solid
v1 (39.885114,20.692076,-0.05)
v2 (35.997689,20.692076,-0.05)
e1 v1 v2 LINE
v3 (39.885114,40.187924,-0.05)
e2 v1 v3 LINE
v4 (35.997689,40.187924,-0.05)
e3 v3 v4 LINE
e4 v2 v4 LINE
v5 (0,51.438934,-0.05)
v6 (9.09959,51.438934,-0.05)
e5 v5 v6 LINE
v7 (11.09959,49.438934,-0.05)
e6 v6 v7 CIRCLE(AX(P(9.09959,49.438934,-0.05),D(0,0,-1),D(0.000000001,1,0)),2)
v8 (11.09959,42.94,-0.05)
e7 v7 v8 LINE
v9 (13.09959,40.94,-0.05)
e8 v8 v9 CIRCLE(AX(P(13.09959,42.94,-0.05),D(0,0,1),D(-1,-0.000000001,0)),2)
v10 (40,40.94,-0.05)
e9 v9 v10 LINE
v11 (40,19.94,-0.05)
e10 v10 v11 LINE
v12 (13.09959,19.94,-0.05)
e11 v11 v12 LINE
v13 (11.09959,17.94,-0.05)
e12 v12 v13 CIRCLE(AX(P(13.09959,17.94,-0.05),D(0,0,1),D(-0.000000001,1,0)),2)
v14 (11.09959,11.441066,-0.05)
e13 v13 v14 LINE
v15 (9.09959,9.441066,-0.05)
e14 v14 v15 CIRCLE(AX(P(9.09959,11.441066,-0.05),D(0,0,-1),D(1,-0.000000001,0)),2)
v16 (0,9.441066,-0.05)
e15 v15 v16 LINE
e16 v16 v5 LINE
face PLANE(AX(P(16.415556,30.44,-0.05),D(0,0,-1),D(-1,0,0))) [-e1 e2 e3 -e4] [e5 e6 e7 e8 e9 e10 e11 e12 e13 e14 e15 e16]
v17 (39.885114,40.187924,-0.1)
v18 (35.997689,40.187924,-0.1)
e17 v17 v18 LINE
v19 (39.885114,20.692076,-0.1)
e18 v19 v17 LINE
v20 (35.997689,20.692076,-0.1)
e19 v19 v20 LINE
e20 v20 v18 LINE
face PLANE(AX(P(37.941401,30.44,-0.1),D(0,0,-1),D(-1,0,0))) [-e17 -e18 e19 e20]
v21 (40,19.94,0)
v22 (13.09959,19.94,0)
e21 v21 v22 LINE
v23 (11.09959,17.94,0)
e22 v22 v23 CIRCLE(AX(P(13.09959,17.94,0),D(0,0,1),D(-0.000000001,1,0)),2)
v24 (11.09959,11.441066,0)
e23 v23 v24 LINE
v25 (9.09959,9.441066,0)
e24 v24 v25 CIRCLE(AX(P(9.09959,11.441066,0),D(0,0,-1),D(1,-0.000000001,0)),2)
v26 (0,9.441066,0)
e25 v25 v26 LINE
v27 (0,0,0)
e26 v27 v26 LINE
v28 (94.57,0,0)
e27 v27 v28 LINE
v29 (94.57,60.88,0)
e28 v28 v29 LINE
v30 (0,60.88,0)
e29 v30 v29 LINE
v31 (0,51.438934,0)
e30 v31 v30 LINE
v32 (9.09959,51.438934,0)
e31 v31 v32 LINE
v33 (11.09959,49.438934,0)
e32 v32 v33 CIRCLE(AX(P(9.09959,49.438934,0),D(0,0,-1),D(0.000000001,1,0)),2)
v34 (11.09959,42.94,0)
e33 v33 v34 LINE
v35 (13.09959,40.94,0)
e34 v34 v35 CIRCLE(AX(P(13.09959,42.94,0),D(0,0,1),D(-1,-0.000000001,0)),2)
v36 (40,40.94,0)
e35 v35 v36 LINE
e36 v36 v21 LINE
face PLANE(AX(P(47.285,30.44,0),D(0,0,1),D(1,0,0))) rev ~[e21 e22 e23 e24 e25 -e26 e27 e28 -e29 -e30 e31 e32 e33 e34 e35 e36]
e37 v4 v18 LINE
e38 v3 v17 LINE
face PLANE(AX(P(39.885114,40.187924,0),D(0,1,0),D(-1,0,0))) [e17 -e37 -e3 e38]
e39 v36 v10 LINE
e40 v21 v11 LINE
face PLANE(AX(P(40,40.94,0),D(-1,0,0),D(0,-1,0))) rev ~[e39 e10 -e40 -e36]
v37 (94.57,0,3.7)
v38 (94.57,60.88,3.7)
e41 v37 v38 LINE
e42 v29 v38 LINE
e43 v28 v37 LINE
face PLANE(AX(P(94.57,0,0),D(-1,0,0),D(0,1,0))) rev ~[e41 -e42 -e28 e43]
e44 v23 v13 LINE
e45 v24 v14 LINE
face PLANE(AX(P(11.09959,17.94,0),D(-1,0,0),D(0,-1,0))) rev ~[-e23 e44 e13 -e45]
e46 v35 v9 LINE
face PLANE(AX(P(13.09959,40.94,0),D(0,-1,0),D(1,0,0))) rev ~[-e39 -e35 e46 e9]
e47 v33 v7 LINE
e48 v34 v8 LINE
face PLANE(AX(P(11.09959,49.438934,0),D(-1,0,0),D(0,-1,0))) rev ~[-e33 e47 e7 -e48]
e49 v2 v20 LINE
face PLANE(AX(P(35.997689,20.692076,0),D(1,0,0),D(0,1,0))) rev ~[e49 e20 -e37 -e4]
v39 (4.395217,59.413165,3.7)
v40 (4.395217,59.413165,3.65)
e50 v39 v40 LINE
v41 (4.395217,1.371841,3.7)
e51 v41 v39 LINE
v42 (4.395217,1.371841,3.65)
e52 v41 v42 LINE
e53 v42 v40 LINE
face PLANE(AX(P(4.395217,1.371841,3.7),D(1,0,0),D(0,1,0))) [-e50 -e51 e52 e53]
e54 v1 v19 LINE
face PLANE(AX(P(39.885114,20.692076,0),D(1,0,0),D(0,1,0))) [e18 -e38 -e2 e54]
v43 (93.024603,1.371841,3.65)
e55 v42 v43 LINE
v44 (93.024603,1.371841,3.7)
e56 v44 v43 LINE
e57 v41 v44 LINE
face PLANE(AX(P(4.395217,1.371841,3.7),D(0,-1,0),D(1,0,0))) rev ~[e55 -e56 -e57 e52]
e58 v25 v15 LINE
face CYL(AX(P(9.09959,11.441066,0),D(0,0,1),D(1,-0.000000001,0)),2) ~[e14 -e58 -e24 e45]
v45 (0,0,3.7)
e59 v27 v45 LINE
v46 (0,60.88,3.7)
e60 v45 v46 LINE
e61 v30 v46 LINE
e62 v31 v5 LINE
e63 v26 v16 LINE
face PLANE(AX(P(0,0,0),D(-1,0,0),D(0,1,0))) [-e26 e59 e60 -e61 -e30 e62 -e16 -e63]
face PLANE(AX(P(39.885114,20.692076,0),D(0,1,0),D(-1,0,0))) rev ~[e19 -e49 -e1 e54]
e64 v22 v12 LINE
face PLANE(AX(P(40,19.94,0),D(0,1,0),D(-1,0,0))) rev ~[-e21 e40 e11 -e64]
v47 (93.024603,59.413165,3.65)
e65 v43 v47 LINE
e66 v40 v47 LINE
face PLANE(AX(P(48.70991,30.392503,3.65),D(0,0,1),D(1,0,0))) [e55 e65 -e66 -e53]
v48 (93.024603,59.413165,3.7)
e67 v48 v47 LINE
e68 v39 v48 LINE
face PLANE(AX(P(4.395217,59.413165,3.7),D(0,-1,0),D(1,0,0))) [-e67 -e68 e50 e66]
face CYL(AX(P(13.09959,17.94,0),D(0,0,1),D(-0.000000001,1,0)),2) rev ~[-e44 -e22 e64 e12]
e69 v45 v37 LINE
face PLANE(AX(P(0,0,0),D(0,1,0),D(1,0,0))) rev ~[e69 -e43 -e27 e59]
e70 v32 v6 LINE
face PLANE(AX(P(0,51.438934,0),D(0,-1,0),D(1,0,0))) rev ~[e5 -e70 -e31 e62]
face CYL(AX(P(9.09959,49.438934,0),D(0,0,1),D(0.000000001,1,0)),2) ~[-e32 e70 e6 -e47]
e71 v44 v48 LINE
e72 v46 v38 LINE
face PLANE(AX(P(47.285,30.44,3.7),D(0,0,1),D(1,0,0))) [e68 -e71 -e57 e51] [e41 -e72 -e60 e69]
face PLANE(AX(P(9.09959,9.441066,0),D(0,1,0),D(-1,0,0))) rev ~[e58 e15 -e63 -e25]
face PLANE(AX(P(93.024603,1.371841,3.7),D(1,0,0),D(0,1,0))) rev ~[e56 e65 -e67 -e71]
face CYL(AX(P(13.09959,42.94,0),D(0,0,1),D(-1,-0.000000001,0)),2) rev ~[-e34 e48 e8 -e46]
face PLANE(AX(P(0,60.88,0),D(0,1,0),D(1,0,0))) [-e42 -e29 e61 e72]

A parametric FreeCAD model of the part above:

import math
import FreeCAD as App
import Part
import Sketcher
from FreeCAD import Vector
Q = App.Units.Quantity


def add_polygon(sketch, points):
    """Adds a closed chain of lines whose ends are joined by coincident constraints."""
    first, n = sketch.GeometryCount, len(points)
    for a, b in zip(points, points[1:] + points[:1]):
        sketch.addGeometry(Part.LineSegment(App.Vector(*a, 0), App.Vector(*b, 0)), False)
    for i in range(n):
        sketch.addConstraint(Sketcher.Constraint("Coincident", first + i, 2, first + (i + 1) % n, 1))

doc = App.newDocument("Part")
body = doc.addObject("PartDesign::Body", "Body")

sketch1 = body.newObject("Sketcher::SketchObject", "Sketch")
sketch1.AttachmentSupport = (doc.getObject("XY_Plane"), [""])
sketch1.MapMode = "FlatFace"
add_polygon(sketch1, [(0, 61), (0, 0), (95, 0), (95, 61)])
sketch1.addConstraint([
    Sketcher.Constraint("Vertical", 0),
    Sketcher.Constraint("Horizontal", 1),
    Sketcher.Constraint("Vertical", 2),
    Sketcher.Constraint("Horizontal", 3),
    Sketcher.Constraint("Coincident", 0, 2, -1, 1),
    Sketcher.Constraint("DistanceX", 1, 1, 1, 2, Q("94.57 mm")),
    Sketcher.Constraint("DistanceY", 0, 2, 0, 1, Q("60.88 mm")),
])
pad1 = body.newObject("PartDesign::Pad", "Pad")
pad1.Profile = sketch1
pad1.Length = 3.7

sketch2 = body.newObject("Sketcher::SketchObject", "Sketch001")
sketch2.AttachmentSupport = (doc.getObject("XY_Plane"), [""])
sketch2.MapMode = "FlatFace"
sketch2.AttachmentOffset = App.Placement(Vector(0, 0, 3.7), App.Rotation())
add_polygon(sketch2, [(4, 59), (4, 1), (93, 1), (93, 59)])
sketch2.addConstraint([
    Sketcher.Constraint("Vertical", 0),
    Sketcher.Constraint("Horizontal", 1),
    Sketcher.Constraint("Vertical", 2),
    Sketcher.Constraint("Horizontal", 3),
    Sketcher.Constraint("DistanceX", 1, 1, 1, 2, Q("88.629386 mm")),
    Sketcher.Constraint("DistanceY", 0, 2, 0, 1, Q("58.041324 mm")),
    Sketcher.Constraint("DistanceY", -1, 1, 0, 2, Q("1.371841 mm")),
    Sketcher.Constraint("DistanceX", -1, 1, 0, 2, Q("4.395217 mm")),
])
pocket1 = body.newObject("PartDesign::Pocket", "Pocket")
pocket1.Profile = sketch2
pocket1.Length = 0.05

sketch3 = body.newObject("Sketcher::SketchObject", "Sketch002")
sketch3.AttachmentSupport = (doc.getObject("XY_Plane"), [""])
sketch3.MapMode = "FlatFace"
sketch3.addGeometry(Part.LineSegment(Vector(9.1, 9.4, 0), Vector(0, 9.4, 0)), False)
sketch3.addGeometry(Part.LineSegment(Vector(0, 9.4, 0), Vector(0, 51.4, 0)), False)
sketch3.addGeometry(Part.LineSegment(Vector(0, 51.4, 0), Vector(9.1, 51.4, 0)), False)
sketch3.addGeometry(Part.ArcOfCircle(Part.Circle(Vector(9.1, 49.4, 0), Vector(0, 0, 1), 2), math.radians(0), math.radians(90)), False)
sketch3.addGeometry(Part.LineSegment(Vector(11.1, 49.4, 0), Vector(11.1, 42.9, 0)), False)
sketch3.addGeometry(Part.ArcOfCircle(Part.Circle(Vector(13.1, 42.9, 0), Vector(0, 0, 1), 2), math.radians(-180), math.radians(-90)), False)
sketch3.addGeometry(Part.LineSegment(Vector(13.1, 40.9, 0), Vector(40, 40.9, 0)), False)
sketch3.addGeometry(Part.LineSegment(Vector(40, 40.9, 0), Vector(40, 19.9, 0)), False)
sketch3.addGeometry(Part.LineSegment(Vector(40, 19.9, 0), Vector(13.1, 19.9, 0)), False)
sketch3.addGeometry(Part.ArcOfCircle(Part.Circle(Vector(13.1, 17.9, 0), Vector(0, 0, 1), 2), math.radians(90), math.radians(180)), False)
sketch3.addGeometry(Part.LineSegment(Vector(11.1, 17.9, 0), Vector(11.1, 11.4, 0)), False)
sketch3.addGeometry(Part.ArcOfCircle(Part.Circle(Vector(9.1, 11.4, 0), Vector(0, 0, 1), 2), math.radians(-90), math.radians(0)), False)
add_polygon(sketch3, [(36, 20.7), (39.9, 20.7), (39.9, 40.2), (36, 40.2)])
sketch3.addConstraint([
    Sketcher.Constraint("Coincident", 0, 2, 1, 1),
    Sketcher.Constraint("Coincident", 1, 2, 2, 1),
    Sketcher.Constraint("Tangent", 2, 2, 3, 2),
    Sketcher.Constraint("Tangent", 3, 1, 4, 1),
    Sketcher.Constraint("Tangent", 4, 2, 5, 1),
    Sketcher.Constraint("Tangent", 5, 2, 6, 1),
    Sketcher.Constraint("Coincident", 6, 2, 7, 1),
    Sketcher.Constraint("Coincident", 7, 2, 8, 1),
    Sketcher.Constraint("Tangent", 8, 2, 9, 1),
    Sketcher.Constraint("Tangent", 9, 2, 10, 1),
    Sketcher.Constraint("Tangent", 10, 2, 11, 2),
    Sketcher.Constraint("Tangent", 11, 1, 0, 1),
    Sketcher.Constraint("Horizontal", 0),
    Sketcher.Constraint("Vertical", 1),
    Sketcher.Constraint("Horizontal", 2),
    Sketcher.Constraint("Vertical", 4),
    Sketcher.Constraint("Horizontal", 6),
    Sketcher.Constraint("Vertical", 7),
    Sketcher.Constraint("Horizontal", 8),
    Sketcher.Constraint("Vertical", 10),
    Sketcher.Constraint("Horizontal", 12),
    Sketcher.Constraint("Vertical", 13),
    Sketcher.Constraint("Horizontal", 14),
    Sketcher.Constraint("Vertical", 15),
    Sketcher.Constraint("Equal", 3, 5),
    Sketcher.Constraint("Equal", 5, 9),
    Sketcher.Constraint("Equal", 9, 11),
    Sketcher.Constraint("PointOnObject", 0, 2, -2),
    Sketcher.Constraint("Vertical", 5, 3, 9, 3),
    Sketcher.Constraint("Equal", 4, 10),
    Sketcher.Constraint("Radius", 3, Q("2 mm")),
    Sketcher.Constraint("DistanceY", 7, 2, 7, 1, Q("21 mm")),
    Sketcher.Constraint("DistanceX", -1, 1, 6, 2, Q("40 mm")),
    Sketcher.Constraint("DistanceY", -1, 1, 5, 3, Q("42.94 mm")),
    Sketcher.Constraint("DistanceX", 0, 2, 0, 1, Q("9.09959 mm")),
    Sketcher.Constraint("DistanceX", 5, 2, 14, 2, Q("22.898099 mm")),
    Sketcher.Constraint("DistanceX", 12, 1, 12, 2, Q("3.887426 mm")),
    Sketcher.Constraint("DistanceY", 1, 1, 1, 2, Q("41.997868 mm")),
    Sketcher.Constraint("DistanceY", 13, 1, 13, 2, Q("19.495848 mm")),
    Sketcher.Constraint("DistanceY", -1, 1, 12, 2, Q("20.692076 mm")),
])
pad2 = body.newObject("PartDesign::Pad", "Pad001")
pad2.Profile = sketch3
pad2.Length = 0.05
pad2.Reversed = True

sketch4 = body.newObject("Sketcher::SketchObject", "Sketch003")
sketch4.AttachmentSupport = (doc.getObject("XY_Plane"), [""])
sketch4.MapMode = "FlatFace"
add_polygon(sketch4, [(39.9, 40.2), (39.9, 20.7), (36, 20.7), (36, 40.2)])
sketch4.addConstraint([
    Sketcher.Constraint("Vertical", 0),
    Sketcher.Constraint("Horizontal", 1),
    Sketcher.Constraint("Vertical", 2),
    Sketcher.Constraint("Horizontal", 3),
    Sketcher.Constraint("DistanceX", 1, 2, 1, 1, Q("3.887426 mm")),
    Sketcher.Constraint("DistanceY", 0, 2, 0, 1, Q("19.495848 mm")),
    Sketcher.Constraint("DistanceX", -1, 1, 1, 2, Q("35.997689 mm")),
    Sketcher.Constraint("DistanceY", -1, 1, 0, 2, Q("20.692076 mm")),
])
pad3 = body.newObject("PartDesign::Pad", "Pad002")
pad3.Profile = sketch4
pad3.Length = 0.1
pad3.Reversed = True

doc.recompute()
